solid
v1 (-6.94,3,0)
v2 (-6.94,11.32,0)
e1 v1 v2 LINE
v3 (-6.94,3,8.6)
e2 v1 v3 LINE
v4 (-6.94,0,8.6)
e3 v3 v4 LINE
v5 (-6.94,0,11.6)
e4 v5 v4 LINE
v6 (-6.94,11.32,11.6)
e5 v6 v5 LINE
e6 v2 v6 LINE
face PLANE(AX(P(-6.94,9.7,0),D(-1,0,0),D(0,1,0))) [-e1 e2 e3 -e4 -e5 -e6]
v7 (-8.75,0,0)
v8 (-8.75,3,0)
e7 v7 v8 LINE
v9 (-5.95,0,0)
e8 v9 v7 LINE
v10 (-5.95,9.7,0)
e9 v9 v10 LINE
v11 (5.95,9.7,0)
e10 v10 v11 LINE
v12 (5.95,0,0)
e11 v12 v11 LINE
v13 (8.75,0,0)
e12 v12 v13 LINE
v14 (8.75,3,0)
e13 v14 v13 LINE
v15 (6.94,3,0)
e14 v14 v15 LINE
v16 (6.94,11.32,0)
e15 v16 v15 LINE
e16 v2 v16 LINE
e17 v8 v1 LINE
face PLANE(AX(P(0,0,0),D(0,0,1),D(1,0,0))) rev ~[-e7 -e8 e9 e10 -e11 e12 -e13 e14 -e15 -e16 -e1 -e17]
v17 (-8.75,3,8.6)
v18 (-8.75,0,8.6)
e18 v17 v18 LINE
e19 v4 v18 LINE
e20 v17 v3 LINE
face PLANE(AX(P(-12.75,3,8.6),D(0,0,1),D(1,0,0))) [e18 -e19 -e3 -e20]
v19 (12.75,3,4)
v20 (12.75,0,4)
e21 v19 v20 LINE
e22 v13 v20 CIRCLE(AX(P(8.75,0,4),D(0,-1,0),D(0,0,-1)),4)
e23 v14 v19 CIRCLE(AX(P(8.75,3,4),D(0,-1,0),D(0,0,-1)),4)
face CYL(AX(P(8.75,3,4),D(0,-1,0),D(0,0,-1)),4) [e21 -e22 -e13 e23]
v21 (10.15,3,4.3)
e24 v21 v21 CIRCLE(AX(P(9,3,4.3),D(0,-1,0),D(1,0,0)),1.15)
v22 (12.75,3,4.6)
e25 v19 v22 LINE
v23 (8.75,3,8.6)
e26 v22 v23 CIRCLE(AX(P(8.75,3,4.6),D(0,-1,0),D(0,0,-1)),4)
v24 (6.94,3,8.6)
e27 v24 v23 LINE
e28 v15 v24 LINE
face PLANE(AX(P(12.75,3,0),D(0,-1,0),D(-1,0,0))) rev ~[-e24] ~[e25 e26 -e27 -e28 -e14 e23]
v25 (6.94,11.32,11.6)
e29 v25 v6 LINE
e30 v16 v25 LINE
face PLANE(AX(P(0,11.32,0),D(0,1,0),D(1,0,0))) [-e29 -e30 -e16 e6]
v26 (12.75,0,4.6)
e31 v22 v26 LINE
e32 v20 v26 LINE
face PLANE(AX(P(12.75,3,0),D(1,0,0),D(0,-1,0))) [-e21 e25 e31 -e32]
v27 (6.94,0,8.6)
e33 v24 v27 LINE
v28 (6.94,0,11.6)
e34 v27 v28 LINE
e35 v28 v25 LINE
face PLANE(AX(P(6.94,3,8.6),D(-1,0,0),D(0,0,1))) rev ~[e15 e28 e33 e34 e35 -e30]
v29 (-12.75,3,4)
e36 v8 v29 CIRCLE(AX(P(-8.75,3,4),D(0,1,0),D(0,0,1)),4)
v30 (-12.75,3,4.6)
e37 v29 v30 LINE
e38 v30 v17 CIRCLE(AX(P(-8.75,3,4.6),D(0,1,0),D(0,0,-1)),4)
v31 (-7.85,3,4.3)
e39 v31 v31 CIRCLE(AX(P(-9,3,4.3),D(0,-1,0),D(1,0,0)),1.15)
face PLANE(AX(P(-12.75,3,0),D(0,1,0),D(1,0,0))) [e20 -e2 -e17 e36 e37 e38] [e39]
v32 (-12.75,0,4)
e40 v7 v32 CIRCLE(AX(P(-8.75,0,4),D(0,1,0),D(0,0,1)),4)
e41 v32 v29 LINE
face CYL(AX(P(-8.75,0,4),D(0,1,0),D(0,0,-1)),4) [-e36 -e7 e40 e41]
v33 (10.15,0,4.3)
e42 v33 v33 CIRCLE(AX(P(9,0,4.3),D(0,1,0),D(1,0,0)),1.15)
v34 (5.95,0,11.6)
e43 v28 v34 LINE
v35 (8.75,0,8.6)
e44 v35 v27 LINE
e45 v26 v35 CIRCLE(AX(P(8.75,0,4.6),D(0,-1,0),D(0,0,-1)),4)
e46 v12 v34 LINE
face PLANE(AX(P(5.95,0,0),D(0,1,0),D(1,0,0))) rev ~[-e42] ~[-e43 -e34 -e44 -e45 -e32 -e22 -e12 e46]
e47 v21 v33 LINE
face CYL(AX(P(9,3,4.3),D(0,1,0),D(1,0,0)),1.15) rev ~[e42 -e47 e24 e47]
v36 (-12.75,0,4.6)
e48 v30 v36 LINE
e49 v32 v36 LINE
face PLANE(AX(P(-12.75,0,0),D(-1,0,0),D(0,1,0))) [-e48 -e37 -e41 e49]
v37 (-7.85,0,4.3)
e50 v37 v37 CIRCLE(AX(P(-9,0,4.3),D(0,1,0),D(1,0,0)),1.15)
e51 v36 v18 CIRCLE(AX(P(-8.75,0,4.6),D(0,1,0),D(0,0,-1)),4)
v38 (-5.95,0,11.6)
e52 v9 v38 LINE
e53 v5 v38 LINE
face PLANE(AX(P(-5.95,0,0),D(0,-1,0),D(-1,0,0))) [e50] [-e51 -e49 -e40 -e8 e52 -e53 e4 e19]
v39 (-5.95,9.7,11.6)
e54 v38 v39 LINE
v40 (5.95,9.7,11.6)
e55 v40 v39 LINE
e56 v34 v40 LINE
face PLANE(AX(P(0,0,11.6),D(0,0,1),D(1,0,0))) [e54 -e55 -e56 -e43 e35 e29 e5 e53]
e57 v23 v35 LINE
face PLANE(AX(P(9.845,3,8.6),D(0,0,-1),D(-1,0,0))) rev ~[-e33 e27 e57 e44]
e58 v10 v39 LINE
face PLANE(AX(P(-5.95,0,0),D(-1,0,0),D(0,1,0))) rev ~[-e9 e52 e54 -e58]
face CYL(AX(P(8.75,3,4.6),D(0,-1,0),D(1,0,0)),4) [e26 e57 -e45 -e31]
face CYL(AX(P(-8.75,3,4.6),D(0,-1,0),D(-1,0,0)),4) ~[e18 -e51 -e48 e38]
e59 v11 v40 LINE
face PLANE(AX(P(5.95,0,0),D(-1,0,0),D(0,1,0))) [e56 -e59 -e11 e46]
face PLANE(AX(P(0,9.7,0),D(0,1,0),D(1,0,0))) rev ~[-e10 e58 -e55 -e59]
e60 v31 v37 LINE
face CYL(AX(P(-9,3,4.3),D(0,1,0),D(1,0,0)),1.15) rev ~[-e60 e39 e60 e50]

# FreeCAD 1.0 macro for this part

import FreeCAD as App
import Part
import Sketcher
from FreeCAD import Vector


def edges_at(feature, points):
    """Names of the edges that pass closest to the given points."""
    edges = feature.Shape.Edges
    near = lambda p: min(range(len(edges)), key=lambda i: edges[i].distToShape(Part.Vertex(*p))[0])
    return sorted({f"Edge{near(p) + 1}" for p in points})


def add_polygon(sketch, points):
    """Adds a closed chain of lines whose ends are joined by coincident constraints."""
    first, n = sketch.GeometryCount, len(points)
    for a, b in zip(points, points[1:] + points[:1]):
        sketch.addGeometry(Part.LineSegment(App.Vector(*a, 0), App.Vector(*b, 0)), False)
    for i in range(n):
        sketch.addConstraint(Sketcher.Constraint("Coincident", first + i, 2, first + (i + 1) % n, 1))

doc = App.newDocument("Part")
params = doc.addObject("Spreadsheet::Sheet", "Params")
for row, (alias, value) in enumerate([
    ("sketch1_height", "3 mm"),
    ("sketch1_width", "5.81 mm"),
    ("pad1_length", "11.6 mm"),
    ("sketch2_height", "3 mm"),
    ("sketch2_width", "5.81 mm"),
    ("pocket1_length", "11.6 mm"),
    ("fillet_radius", "4 mm"),
    ("sketch3_diameter", "2.3 mm"),
    ("pocket2_length", "11.6 mm"),
], start=1):
    params.set(f"A{row}", alias)
    params.set(f"B{row}", "=" + value)
    params.setAlias(f"B{row}", alias)

body = doc.addObject("PartDesign::Body", "Body")

# Sketch on XY plane
sketch1 = doc.addObject("Sketcher::SketchObject", "Sketch")
body.addObject(sketch1)
sketch1.AttachmentSupport = (doc.XY_Plane, [""])
sketch1.MapMode = "FlatFace"
add_polygon(sketch1, [(5.95, 9.7), (5.95, 0), (12.75, 0), (12.75, 3), (6.94, 3), (6.94, 11.32), (-6.94, 11.32), (-6.94, 3), (-12.75, 3), (-12.75, 0), (-5.95, 0), (-5.95, 9.7)])  # lines 0-11
sketch1.addConstraint(Sketcher.Constraint("Vertical", 0))
sketch1.addConstraint(Sketcher.Constraint("Horizontal", 1))
sketch1.addConstraint(Sketcher.Constraint("Vertical", 2))
sketch1.addConstraint(Sketcher.Constraint("Horizontal", 3))
sketch1.addConstraint(Sketcher.Constraint("Vertical", 4))
sketch1.addConstraint(Sketcher.Constraint("Horizontal", 5))
sketch1.addConstraint(Sketcher.Constraint("Vertical", 6))
sketch1.addConstraint(Sketcher.Constraint("Horizontal", 7))
sketch1.addConstraint(Sketcher.Constraint("Vertical", 8))
sketch1.addConstraint(Sketcher.Constraint("Horizontal", 9))
sketch1.addConstraint(Sketcher.Constraint("Vertical", 10))
sketch1.addConstraint(Sketcher.Constraint("Horizontal", 11))
sketch1.addConstraint(Sketcher.Constraint("Symmetric", 1, 2, 8, 2, -1, 1))
sketch1.addConstraint(Sketcher.Constraint("Symmetric", 3, 2, 6, 2, -2))
sketch1.addConstraint(Sketcher.Constraint("Symmetric", 0, 2, 9, 2, -2))
sketch1.addConstraint(Sketcher.Constraint("DistanceY", 2, 1, 2, 2, 3.0))
sketch1.addConstraint(Sketcher.Constraint("DistanceX", 3, 2, 3, 1, 5.81))
sketch1.addConstraint(Sketcher.Constraint("DistanceX", -1, 1, 0, 2, 5.95))
sketch1.addConstraint(Sketcher.Constraint("DistanceX", -1, 1, 1, 2, 12.75))
sketch1.addConstraint(Sketcher.Constraint("DistanceY", -1, 1, 4, 2, 11.32))
sketch1.addConstraint(Sketcher.Constraint("DistanceY", 10, 2, 5, 2, 1.62))
sketch1.setExpression("Constraints[27]", "Params.sketch1_height")
sketch1.setExpression("Constraints[28]", "Params.sketch1_width")
pad1 = doc.addObject("PartDesign::Pad", "Pad")
body.addObject(pad1)
pad1.Profile = sketch1
pad1.setExpression("Length", "Params.pad1_length")

# Sketch on XZ plane
sketch2 = doc.addObject("Sketcher::SketchObject", "Sketch001")
body.addObject(sketch2)
sketch2.AttachmentSupport = (doc.XZ_Plane, [""])
sketch2.MapMode = "FlatFace"
sketch2.AttachmentOffset = App.Placement(Vector(0, 0, -3), App.Rotation())
add_polygon(sketch2, [(6.94, 8.6), (6.94, 11.6), (12.75, 11.6), (12.75, 8.6)])  # lines 0-3
add_polygon(sketch2, [(-12.75, 11.6), (-6.94, 11.6), (-6.94, 8.6), (-12.75, 8.6)])  # lines 4-7
sketch2.addConstraint(Sketcher.Constraint("Vertical", 0))
sketch2.addConstraint(Sketcher.Constraint("Horizontal", 1))
sketch2.addConstraint(Sketcher.Constraint("Vertical", 2))
sketch2.addConstraint(Sketcher.Constraint("Horizontal", 3))
sketch2.addConstraint(Sketcher.Constraint("Horizontal", 4))
sketch2.addConstraint(Sketcher.Constraint("Vertical", 5))
sketch2.addConstraint(Sketcher.Constraint("Horizontal", 6))
sketch2.addConstraint(Sketcher.Constraint("Vertical", 7))
sketch2.addConstraint(Sketcher.Constraint("Symmetric", 0, 2, 4, 2, -2))
sketch2.addConstraint(Sketcher.Constraint("Symmetric", 2, 2, 6, 2, -2))
sketch2.addConstraint(Sketcher.Constraint("DistanceY", 0, 1, 0, 2, 3.0))
sketch2.addConstraint(Sketcher.Constraint("DistanceX", 1, 1, 1, 2, 5.81))
sketch2.addConstraint(Sketcher.Constraint("DistanceY", -1, 1, 0, 2, 11.6))
sketch2.addConstraint(Sketcher.Constraint("DistanceX", 6, 2, 2, 2, 25.5))
sketch2.setExpression("Constraints[18]", "Params.sketch2_height")
sketch2.setExpression("Constraints[19]", "Params.sketch2_width")
pocket1 = doc.addObject("PartDesign::Pocket", "Pocket")
body.addObject(pocket1)
pocket1.Profile = sketch2
pocket1.setExpression("Length", "Params.pocket1_length")
pocket1.Reversed = True
doc.recompute()

fillet = doc.addObject("PartDesign::Fillet", "Fillet")
body.addObject(fillet)
fillet.Base = (pocket1, edges_at(pocket1, [
    (-12.75, 1.5, 0),
    (-12.75, 1.5, 8.6),
    (12.75, 1.5, 0),
    (12.75, 1.5, 8.6),
]))
fillet.setExpression("Radius", "Params.fillet_radius")

# Sketch on XZ plane
sketch3 = doc.addObject("Sketcher::SketchObject", "Sketch002")
body.addObject(sketch3)
sketch3.AttachmentSupport = (doc.XZ_Plane, [""])
sketch3.MapMode = "FlatFace"
sketch3.AttachmentOffset = App.Placement(Vector(0, 0, -3), App.Rotation())
sketch3.addGeometry(Part.Circle(Vector(9, 4.3, 0), Vector(0, 0, 1), 1.15), False)
sketch3.addGeometry(Part.Circle(Vector(-9, 4.3, 0), Vector(0, 0, 1), 1.15), False)
sketch3.addConstraint(Sketcher.Constraint("Equal", 0, 1))
sketch3.addConstraint(Sketcher.Constraint("Symmetric", 0, 3, 1, 3, -2))
sketch3.addConstraint(Sketcher.Constraint("Diameter", 0, 2.3))
sketch3.addConstraint(Sketcher.Constraint("DistanceX", -1, 1, 0, 3, 9.0))
sketch3.addConstraint(Sketcher.Constraint("DistanceY", -1, 1, 0, 3, 4.3))
sketch3.setExpression("Constraints[2]", "Params.sketch3_diameter")
pocket2 = doc.addObject("PartDesign::Pocket", "Pocket001")
body.addObject(pocket2)
pocket2.Profile = sketch3
pocket2.setExpression("Length", "Params.pocket2_length")
pocket2.Reversed = True

doc.recompute()
